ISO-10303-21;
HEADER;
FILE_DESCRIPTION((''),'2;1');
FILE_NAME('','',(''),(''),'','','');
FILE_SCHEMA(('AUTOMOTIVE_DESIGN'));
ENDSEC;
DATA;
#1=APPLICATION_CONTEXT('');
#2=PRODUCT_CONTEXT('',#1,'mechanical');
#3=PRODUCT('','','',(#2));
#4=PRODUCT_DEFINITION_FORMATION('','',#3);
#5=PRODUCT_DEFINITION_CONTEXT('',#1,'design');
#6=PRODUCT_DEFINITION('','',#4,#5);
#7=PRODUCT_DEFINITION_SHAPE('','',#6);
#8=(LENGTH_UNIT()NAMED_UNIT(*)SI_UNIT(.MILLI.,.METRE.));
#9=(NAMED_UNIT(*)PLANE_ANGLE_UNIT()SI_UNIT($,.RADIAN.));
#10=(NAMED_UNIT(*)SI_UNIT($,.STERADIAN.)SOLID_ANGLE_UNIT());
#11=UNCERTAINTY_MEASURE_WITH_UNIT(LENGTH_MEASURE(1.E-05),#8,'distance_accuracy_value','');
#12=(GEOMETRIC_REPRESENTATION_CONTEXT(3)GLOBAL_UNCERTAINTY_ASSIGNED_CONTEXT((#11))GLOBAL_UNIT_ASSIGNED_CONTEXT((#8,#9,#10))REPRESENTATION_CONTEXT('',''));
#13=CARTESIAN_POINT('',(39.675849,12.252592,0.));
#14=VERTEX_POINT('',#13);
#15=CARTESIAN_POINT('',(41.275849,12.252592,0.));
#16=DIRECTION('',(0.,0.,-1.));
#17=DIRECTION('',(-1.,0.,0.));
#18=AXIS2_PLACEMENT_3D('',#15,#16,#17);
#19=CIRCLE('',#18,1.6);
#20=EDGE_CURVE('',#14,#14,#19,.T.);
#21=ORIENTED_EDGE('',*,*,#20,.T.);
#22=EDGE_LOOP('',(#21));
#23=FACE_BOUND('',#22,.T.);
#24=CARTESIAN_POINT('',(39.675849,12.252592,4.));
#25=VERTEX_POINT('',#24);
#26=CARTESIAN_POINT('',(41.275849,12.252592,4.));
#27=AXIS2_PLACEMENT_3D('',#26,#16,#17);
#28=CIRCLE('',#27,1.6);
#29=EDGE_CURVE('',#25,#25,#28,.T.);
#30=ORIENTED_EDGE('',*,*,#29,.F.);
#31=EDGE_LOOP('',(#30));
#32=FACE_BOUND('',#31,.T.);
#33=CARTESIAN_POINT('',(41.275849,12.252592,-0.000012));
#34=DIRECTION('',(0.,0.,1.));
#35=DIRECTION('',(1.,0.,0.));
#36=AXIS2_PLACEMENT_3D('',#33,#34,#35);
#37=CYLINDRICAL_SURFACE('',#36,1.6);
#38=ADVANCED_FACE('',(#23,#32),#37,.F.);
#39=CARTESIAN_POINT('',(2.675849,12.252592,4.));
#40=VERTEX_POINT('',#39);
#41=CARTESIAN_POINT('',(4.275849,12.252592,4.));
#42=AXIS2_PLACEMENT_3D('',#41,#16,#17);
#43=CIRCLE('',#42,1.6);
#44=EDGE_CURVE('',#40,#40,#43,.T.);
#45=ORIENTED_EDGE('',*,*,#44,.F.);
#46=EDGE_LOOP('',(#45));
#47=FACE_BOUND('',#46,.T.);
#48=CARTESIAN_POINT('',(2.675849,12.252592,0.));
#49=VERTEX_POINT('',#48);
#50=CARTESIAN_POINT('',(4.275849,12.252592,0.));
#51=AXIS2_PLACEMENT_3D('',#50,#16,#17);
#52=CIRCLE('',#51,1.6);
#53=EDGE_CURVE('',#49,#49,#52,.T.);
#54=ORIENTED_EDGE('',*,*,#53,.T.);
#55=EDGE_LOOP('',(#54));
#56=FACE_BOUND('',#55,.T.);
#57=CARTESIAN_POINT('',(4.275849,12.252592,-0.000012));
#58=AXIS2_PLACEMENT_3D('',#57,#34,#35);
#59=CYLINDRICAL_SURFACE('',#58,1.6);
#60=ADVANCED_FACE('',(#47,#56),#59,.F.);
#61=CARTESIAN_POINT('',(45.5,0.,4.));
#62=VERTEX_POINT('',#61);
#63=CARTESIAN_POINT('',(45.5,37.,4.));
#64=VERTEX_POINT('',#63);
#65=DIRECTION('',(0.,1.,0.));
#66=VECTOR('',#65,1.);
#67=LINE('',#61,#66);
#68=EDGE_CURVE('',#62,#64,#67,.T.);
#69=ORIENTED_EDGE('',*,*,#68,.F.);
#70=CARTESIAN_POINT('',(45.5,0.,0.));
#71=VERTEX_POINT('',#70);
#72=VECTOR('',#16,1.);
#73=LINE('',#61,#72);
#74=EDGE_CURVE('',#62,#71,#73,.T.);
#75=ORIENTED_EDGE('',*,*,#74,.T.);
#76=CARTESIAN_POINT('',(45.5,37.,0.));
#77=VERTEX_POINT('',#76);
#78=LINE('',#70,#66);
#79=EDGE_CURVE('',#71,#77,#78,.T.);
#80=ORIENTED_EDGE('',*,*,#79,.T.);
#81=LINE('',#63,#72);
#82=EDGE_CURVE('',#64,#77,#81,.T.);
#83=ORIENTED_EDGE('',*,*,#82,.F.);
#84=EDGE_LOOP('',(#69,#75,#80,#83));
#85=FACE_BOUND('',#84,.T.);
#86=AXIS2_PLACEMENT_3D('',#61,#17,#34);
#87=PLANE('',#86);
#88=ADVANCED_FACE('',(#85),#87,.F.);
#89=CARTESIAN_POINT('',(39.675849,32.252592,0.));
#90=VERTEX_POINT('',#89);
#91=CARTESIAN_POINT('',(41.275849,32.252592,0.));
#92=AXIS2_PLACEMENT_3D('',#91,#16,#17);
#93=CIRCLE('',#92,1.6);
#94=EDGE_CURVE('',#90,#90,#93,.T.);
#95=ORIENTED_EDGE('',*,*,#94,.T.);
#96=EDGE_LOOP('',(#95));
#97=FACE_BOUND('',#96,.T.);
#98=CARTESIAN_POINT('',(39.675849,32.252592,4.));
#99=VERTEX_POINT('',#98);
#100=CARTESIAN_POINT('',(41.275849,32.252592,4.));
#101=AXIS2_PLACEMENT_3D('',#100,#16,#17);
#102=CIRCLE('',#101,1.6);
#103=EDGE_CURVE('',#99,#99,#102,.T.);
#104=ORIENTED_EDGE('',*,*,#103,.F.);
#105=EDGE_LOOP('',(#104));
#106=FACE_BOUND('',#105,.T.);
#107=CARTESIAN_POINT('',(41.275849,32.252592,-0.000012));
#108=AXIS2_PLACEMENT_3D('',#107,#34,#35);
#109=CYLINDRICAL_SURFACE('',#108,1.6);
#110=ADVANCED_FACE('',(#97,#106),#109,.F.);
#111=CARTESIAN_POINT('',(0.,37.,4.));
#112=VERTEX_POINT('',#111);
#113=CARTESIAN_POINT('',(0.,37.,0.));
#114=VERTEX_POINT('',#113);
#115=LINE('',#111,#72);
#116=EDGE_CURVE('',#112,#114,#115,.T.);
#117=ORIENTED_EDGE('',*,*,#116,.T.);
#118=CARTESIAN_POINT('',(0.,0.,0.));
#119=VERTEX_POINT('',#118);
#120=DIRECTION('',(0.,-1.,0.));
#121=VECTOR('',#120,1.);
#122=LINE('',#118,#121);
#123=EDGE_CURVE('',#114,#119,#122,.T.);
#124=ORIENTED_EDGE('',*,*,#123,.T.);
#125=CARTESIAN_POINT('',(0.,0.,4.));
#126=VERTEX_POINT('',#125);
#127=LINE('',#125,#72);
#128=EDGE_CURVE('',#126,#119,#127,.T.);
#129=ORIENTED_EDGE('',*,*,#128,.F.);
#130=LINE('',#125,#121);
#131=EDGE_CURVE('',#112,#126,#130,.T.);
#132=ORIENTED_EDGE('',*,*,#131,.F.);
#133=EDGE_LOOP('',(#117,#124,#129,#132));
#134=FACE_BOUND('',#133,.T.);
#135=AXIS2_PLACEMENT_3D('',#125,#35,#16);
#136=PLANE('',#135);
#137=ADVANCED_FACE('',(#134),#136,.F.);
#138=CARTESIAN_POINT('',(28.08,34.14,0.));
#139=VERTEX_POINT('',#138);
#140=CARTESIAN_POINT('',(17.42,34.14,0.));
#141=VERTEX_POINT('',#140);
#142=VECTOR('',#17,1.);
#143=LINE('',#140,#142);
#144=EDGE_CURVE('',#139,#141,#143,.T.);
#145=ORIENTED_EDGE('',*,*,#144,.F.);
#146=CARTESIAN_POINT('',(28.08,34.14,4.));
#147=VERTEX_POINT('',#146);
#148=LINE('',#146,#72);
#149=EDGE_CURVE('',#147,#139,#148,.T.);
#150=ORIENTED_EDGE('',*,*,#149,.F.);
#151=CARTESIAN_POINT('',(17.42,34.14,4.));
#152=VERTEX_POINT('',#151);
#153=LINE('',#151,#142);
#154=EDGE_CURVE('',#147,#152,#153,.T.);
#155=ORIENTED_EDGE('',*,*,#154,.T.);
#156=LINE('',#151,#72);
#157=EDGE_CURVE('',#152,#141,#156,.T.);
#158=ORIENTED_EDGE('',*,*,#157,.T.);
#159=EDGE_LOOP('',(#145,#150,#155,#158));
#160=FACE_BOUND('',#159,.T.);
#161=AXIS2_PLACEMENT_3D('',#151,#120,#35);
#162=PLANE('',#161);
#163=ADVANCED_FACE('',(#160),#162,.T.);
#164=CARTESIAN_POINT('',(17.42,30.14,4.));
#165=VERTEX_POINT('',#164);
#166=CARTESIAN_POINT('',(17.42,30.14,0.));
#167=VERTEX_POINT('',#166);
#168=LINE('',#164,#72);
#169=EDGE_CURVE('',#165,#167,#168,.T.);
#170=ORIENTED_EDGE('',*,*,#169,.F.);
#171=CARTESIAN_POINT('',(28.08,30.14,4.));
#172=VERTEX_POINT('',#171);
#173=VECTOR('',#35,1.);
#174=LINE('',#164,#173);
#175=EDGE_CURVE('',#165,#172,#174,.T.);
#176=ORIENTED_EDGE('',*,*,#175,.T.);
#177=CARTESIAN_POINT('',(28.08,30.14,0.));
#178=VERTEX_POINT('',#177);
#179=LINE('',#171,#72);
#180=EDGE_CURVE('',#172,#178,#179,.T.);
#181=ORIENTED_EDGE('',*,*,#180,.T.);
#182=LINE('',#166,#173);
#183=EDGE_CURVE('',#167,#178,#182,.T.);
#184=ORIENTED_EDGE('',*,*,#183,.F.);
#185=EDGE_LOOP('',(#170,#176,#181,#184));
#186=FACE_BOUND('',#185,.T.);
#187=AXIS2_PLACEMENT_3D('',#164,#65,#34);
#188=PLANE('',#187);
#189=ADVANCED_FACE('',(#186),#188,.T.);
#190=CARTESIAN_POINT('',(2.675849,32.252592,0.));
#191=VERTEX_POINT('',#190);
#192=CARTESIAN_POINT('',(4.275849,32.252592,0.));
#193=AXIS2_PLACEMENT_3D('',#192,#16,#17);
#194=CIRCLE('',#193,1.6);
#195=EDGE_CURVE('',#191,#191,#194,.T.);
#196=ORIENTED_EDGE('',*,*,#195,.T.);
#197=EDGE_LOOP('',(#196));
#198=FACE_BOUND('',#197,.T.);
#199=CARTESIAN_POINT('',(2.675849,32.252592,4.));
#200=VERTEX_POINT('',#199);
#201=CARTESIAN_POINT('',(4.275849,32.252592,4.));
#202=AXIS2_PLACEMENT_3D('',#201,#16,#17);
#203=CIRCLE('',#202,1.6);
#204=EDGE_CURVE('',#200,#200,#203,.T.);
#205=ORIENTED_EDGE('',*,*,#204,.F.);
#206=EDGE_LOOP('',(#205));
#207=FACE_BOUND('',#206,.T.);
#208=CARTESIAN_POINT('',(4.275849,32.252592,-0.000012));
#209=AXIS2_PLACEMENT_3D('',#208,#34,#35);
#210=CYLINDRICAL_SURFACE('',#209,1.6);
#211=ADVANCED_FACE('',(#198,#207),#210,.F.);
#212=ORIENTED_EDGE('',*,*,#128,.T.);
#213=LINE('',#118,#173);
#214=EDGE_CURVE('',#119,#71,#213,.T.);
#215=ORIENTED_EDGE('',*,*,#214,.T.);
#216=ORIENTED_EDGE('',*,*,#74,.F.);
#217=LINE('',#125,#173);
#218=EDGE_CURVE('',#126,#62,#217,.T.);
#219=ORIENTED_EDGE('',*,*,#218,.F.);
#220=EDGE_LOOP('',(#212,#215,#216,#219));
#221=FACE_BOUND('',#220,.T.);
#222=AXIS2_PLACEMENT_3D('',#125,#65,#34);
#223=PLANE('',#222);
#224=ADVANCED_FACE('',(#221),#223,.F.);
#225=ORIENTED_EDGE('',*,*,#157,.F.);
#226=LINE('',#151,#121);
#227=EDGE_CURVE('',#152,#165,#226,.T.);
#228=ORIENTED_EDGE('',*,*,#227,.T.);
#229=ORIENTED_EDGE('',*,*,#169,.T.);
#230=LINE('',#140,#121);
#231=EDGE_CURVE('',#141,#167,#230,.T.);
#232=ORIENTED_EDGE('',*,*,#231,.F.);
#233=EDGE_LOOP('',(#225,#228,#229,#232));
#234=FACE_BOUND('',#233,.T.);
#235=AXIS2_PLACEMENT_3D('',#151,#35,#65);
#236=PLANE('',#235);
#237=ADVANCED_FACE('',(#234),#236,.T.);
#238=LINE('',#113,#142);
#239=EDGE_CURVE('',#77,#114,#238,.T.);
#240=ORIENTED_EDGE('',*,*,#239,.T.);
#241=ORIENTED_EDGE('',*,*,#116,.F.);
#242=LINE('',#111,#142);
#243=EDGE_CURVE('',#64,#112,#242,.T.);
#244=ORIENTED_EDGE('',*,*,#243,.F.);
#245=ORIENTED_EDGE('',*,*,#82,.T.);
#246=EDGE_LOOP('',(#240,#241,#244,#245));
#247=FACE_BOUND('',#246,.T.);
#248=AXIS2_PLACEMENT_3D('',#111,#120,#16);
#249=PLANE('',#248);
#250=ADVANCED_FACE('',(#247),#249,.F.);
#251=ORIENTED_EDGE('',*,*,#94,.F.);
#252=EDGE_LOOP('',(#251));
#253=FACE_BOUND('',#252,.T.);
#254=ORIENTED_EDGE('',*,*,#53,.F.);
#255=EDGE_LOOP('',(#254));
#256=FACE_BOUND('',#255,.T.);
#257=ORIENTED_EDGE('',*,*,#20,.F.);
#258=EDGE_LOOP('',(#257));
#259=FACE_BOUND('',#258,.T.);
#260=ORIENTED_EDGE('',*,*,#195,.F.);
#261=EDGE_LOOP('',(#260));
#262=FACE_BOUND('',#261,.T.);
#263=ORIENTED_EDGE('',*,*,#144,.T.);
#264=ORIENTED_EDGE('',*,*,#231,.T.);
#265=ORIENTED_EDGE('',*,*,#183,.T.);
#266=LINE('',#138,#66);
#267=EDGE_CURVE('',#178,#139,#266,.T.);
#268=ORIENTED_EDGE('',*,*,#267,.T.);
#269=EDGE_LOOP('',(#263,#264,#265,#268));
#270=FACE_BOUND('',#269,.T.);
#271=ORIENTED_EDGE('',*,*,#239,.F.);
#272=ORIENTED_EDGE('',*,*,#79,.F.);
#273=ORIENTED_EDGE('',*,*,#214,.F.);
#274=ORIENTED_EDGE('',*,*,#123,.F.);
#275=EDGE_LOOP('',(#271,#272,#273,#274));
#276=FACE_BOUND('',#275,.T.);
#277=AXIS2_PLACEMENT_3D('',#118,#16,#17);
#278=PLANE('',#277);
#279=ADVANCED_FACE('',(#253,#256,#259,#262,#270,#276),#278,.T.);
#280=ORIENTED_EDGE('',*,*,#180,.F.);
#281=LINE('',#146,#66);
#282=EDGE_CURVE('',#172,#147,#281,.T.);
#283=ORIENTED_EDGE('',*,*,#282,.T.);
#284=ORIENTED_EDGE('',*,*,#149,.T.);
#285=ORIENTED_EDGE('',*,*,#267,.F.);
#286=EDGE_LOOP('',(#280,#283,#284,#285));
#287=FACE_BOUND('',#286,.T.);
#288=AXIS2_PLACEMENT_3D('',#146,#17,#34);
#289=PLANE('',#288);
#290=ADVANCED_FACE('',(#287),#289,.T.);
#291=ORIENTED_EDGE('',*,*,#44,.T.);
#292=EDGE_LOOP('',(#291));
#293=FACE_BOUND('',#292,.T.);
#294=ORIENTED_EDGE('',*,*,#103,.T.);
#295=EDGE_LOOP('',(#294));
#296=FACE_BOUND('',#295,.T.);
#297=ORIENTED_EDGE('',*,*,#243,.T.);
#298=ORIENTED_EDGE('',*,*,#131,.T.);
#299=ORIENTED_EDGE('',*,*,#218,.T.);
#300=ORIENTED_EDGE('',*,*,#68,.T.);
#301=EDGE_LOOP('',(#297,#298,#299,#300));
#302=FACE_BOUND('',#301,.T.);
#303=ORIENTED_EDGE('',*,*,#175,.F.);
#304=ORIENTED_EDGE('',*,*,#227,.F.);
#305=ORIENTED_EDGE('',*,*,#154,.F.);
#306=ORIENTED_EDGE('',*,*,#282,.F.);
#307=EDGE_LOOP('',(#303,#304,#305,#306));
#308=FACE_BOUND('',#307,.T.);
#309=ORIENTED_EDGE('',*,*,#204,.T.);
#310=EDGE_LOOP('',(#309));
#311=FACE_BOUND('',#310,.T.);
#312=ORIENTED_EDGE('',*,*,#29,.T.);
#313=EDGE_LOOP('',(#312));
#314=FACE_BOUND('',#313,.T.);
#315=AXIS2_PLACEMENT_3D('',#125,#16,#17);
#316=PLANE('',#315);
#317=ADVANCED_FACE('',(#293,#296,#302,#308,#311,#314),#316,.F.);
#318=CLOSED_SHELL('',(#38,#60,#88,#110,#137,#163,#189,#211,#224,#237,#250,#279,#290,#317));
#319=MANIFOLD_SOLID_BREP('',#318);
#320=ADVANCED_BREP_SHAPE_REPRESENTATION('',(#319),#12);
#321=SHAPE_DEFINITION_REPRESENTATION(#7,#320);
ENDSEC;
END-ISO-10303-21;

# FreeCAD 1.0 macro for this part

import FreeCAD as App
import Part
import Sketcher

doc = App.newDocument("Part")
body = doc.addObject("PartDesign::Body", "Body")

# Sketch on XY plane
sketch1 = body.newObject("Sketcher::SketchObject", "Sketch")
sketch1.AttachmentSupport = (doc.getObject("XY_Plane"), [""])
sketch1.MapMode = "FlatFace"
sketch1.addGeometry(Part.LineSegment(App.Vector(0, 37, 0), App.Vector(0, 0, 0)), False)
sketch1.addGeometry(Part.LineSegment(App.Vector(0, 0, 0), App.Vector(45.5, 0, 0)), False)
sketch1.addGeometry(Part.LineSegment(App.Vector(45.5, 0, 0), App.Vector(45.5, 37, 0)), False)
sketch1.addGeometry(Part.LineSegment(App.Vector(45.5, 37, 0), App.Vector(0, 37, 0)), False)
sketch1.addGeometry(Part.LineSegment(App.Vector(28.1, 30.1, 0), App.Vector(17.4, 30.1, 0)), False)
sketch1.addGeometry(Part.LineSegment(App.Vector(17.4, 30.1, 0), App.Vector(17.4, 34.1, 0)), False)
sketch1.addGeometry(Part.LineSegment(App.Vector(17.4, 34.1, 0), App.Vector(28.1, 34.1, 0)), False)
sketch1.addGeometry(Part.LineSegment(App.Vector(28.1, 34.1, 0), App.Vector(28.1, 30.1, 0)), False)
sketch1.addConstraint(Sketcher.Constraint("Coincident", 0, 2, 1, 1))
sketch1.addConstraint(Sketcher.Constraint("Coincident", 1, 2, 2, 1))
sketch1.addConstraint(Sketcher.Constraint("Coincident", 2, 2, 3, 1))
sketch1.addConstraint(Sketcher.Constraint("Coincident", 3, 2, 0, 1))
sketch1.addConstraint(Sketcher.Constraint("Coincident", 4, 2, 5, 1))
sketch1.addConstraint(Sketcher.Constraint("Coincident", 5, 2, 6, 1))
sketch1.addConstraint(Sketcher.Constraint("Coincident", 6, 2, 7, 1))
sketch1.addConstraint(Sketcher.Constraint("Coincident", 7, 2, 4, 1))
sketch1.addConstraint(Sketcher.Constraint("Vertical", 0))
sketch1.addConstraint(Sketcher.Constraint("Horizontal", 1))
sketch1.addConstraint(Sketcher.Constraint("Vertical", 2))
sketch1.addConstraint(Sketcher.Constraint("Horizontal", 3))
sketch1.addConstraint(Sketcher.Constraint("Horizontal", 4))
sketch1.addConstraint(Sketcher.Constraint("Vertical", 5))
sketch1.addConstraint(Sketcher.Constraint("Horizontal", 6))
sketch1.addConstraint(Sketcher.Constraint("Vertical", 7))
sketch1.addConstraint(Sketcher.Constraint("Coincident", 0, 2, -1, 1))
sketch1.addConstraint(Sketcher.Constraint("DistanceY", 0, 2, 0, 1, 37.0))
sketch1.addConstraint(Sketcher.Constraint("DistanceY", 5, 1, 5, 2, 4.0))
sketch1.addConstraint(Sketcher.Constraint("DistanceX", 1, 1, 1, 2, 45.5))
sketch1.addConstraint(Sketcher.Constraint("DistanceX", 4, 2, 4, 1, 10.66))
sketch1.addConstraint(Sketcher.Constraint("DistanceX", -1, 1, 4, 2, 17.42))
sketch1.addConstraint(Sketcher.Constraint("DistanceY", -1, 1, 4, 2, 30.14))
pad1 = body.newObject("PartDesign::Pad", "Pad")
pad1.Profile = sketch1
pad1.Length = 4

# Sketch on XY plane
sketch2 = body.newObject("Sketcher::SketchObject", "Sketch001")
sketch2.AttachmentSupport = (doc.getObject("XY_Plane"), [""])
sketch2.MapMode = "FlatFace"
sketch2.addGeometry(Part.Circle(App.Vector(41.3, 32.3, 0), App.Vector(0, 0, 1), 1.6), False)
sketch2.addGeometry(Part.Circle(App.Vector(41.3, 12.3, 0), App.Vector(0, 0, 1), 1.6), False)
sketch2.addGeometry(Part.Circle(App.Vector(4.3, 12.3, 0), App.Vector(0, 0, 1), 1.6), False)
sketch2.addGeometry(Part.Circle(App.Vector(4.3, 32.3, 0), App.Vector(0, 0, 1), 1.6), False)
sketch2.addConstraint(Sketcher.Constraint("Equal", 0, 1))
sketch2.addConstraint(Sketcher.Constraint("Equal", 1, 2))
sketch2.addConstraint(Sketcher.Constraint("Equal", 2, 3))
sketch2.addConstraint(Sketcher.Constraint("Horizontal", 1, 3, 2, 3))
sketch2.addConstraint(Sketcher.Constraint("Horizontal", 0, 3, 3, 3))
sketch2.addConstraint(Sketcher.Constraint("Vertical", 0, 3, 1, 3))
sketch2.addConstraint(Sketcher.Constraint("Vertical", 2, 3, 3, 3))
sketch2.addConstraint(Sketcher.Constraint("Diameter", 0, 3.2))
sketch2.addConstraint(Sketcher.Constraint("DistanceY", 1, 3, 0, 3, 20.0))
sketch2.addConstraint(Sketcher.Constraint("DistanceX", 2, 3, 1, 3, 37.0))
sketch2.addConstraint(Sketcher.Constraint("DistanceX", -1, 1, 0, 3, 41.275849))
sketch2.addConstraint(Sketcher.Constraint("DistanceY", -1, 1, 0, 3, 32.252592))
pocket1 = body.newObject("PartDesign::Pocket", "Pocket")
pocket1.Profile = sketch2
pocket1.Type = "ThroughAll"
pocket1.Midplane = True

doc.recompute()
